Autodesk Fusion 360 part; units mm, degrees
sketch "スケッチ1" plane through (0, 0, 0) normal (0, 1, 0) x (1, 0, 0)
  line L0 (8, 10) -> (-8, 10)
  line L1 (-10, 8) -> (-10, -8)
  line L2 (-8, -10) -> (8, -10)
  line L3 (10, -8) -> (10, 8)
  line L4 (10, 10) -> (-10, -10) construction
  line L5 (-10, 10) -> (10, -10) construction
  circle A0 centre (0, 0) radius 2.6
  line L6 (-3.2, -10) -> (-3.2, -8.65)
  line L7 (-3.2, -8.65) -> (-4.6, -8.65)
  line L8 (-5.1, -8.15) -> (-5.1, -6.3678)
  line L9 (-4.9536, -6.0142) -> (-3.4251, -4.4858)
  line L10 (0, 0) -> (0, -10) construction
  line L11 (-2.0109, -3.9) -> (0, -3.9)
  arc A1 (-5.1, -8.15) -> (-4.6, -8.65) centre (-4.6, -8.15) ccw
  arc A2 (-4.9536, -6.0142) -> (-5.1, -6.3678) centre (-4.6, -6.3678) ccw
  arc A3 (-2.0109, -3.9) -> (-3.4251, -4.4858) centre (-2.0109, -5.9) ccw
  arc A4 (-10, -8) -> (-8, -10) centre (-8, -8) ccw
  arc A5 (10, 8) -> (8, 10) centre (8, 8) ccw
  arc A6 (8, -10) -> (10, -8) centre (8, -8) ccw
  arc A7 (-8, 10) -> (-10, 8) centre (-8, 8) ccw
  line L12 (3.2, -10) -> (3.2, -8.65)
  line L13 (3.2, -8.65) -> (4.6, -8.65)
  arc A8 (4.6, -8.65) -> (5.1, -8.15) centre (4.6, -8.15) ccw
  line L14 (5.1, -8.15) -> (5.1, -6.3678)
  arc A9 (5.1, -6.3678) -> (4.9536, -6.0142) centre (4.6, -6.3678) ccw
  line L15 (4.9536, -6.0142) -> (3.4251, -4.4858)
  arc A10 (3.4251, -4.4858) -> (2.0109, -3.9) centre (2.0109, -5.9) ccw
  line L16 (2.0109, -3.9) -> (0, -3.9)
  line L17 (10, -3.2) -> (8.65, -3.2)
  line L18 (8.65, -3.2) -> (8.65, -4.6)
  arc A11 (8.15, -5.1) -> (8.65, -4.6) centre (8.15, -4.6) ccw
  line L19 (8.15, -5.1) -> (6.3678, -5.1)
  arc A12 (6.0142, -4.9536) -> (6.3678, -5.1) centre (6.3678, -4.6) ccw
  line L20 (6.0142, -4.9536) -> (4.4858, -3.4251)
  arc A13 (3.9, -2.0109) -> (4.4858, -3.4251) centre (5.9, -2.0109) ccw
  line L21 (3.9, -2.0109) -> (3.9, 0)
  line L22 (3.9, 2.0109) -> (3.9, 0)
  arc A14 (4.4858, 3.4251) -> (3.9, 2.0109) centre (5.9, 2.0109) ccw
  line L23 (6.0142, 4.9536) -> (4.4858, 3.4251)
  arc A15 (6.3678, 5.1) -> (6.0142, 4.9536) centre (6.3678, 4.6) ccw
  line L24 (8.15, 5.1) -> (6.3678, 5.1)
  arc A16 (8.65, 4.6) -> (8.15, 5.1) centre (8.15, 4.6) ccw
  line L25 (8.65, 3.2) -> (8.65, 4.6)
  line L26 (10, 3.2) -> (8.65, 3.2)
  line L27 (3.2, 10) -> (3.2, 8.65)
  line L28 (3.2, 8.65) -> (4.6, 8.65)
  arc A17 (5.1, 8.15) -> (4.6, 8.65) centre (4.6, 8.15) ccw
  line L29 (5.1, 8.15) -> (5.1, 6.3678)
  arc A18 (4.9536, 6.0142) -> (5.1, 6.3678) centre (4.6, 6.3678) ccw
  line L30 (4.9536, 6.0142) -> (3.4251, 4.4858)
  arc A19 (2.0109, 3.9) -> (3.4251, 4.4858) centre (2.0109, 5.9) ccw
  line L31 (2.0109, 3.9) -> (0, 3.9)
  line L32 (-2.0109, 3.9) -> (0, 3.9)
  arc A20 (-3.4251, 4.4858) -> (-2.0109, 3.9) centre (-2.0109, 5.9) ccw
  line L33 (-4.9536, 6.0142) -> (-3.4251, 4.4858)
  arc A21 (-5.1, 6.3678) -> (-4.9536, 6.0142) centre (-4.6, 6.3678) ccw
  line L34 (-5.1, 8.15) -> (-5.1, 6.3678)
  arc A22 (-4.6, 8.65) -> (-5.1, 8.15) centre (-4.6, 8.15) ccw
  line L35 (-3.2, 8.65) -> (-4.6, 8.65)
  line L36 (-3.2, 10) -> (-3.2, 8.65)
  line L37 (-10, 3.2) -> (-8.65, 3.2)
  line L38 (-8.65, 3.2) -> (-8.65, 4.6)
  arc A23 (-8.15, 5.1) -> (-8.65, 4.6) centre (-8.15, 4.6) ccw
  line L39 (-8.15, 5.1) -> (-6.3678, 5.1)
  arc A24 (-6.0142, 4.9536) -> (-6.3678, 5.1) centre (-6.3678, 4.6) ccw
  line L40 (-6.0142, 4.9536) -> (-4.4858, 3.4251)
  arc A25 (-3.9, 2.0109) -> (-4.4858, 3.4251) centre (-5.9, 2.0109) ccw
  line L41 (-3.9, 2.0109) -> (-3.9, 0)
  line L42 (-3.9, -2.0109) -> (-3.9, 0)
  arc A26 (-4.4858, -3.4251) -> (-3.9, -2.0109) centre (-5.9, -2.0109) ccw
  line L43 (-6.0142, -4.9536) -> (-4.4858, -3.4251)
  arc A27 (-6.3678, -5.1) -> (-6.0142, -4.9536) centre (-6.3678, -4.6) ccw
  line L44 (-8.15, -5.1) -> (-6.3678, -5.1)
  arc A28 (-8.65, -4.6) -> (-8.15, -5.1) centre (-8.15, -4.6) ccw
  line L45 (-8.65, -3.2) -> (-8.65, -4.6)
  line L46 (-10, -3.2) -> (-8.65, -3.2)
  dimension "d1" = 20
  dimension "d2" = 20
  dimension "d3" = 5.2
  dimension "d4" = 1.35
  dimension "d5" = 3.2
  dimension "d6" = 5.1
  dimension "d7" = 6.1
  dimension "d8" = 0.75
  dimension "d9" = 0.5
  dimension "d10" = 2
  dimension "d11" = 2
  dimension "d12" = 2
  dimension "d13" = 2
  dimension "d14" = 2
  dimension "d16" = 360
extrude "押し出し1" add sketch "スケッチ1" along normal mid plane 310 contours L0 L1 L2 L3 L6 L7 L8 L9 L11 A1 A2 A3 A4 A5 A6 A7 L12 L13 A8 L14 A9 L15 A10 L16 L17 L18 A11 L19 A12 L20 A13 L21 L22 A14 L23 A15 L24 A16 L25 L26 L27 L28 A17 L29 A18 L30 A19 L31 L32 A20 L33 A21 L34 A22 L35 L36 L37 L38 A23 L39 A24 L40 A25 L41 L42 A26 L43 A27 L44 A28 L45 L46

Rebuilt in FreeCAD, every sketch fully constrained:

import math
import FreeCAD as App
import Part
import Sketcher
from FreeCAD import Vector
Q = App.Units.Quantity

doc = App.newDocument("Part")
body = doc.addObject("PartDesign::Body", "Body")

sketch1 = body.newObject("Sketcher::SketchObject", "Sketch")
sketch1.AttachmentSupport = (doc.getObject("XZ_Plane"), [""])
sketch1.MapMode = "FlatFace"
sketch1.addGeometry(Part.ArcOfCircle(Part.Circle(Vector(8, -8, 0), Vector(0, 0, 1), 2), math.radians(-90), math.radians(0)), False)
sketch1.addGeometry(Part.LineSegment(Vector(8, -10, 0), Vector(3.2, -10, 0)), False)
sketch1.addGeometry(Part.LineSegment(Vector(3.2, -10, 0), Vector(3.2, -8.65, 0)), False)
sketch1.addGeometry(Part.LineSegment(Vector(3.2, -8.65, 0), Vector(4.6, -8.65, 0)), False)
sketch1.addGeometry(Part.ArcOfCircle(Part.Circle(Vector(4.6, -8.15, 0), Vector(0, 0, 1), 0.5), math.radians(-90), math.radians(0)), False)
sketch1.addGeometry(Part.LineSegment(Vector(5.1, -8.15, 0), Vector(5.1, -6.3678, 0)), False)
sketch1.addGeometry(Part.ArcOfCircle(Part.Circle(Vector(4.6, -6.3678, 0), Vector(0, 0, 1), 0.500066), math.radians(0), math.radians(45)), False)
sketch1.addGeometry(Part.LineSegment(Vector(4.9536, -6.0142, 0), Vector(3.4251, -4.4858, 0)), False)
sketch1.addGeometry(Part.ArcOfCircle(Part.Circle(Vector(2.0109, -5.9, 0), Vector(0, 0, 1), 2), math.radians(45), math.radians(90)), False)
sketch1.addGeometry(Part.LineSegment(Vector(2.0109, -3.9, 0), Vector(-2.0109, -3.9, 0)), False)
sketch1.addGeometry(Part.ArcOfCircle(Part.Circle(Vector(-2.0109, -5.9, 0), Vector(0, 0, 1), 1.999981), math.radians(90), math.radians(135)), False)
sketch1.addGeometry(Part.LineSegment(Vector(-3.4251, -4.4858, 0), Vector(-4.9536, -6.0142, 0)), False)
sketch1.addGeometry(Part.ArcOfCircle(Part.Circle(Vector(-4.6, -6.3678, 0), Vector(0, 0, 1), 0.5), math.radians(135), math.radians(180)), False)
sketch1.addGeometry(Part.LineSegment(Vector(-5.1, -6.3678, 0), Vector(-5.1, -8.15, 0)), False)
sketch1.addGeometry(Part.ArcOfCircle(Part.Circle(Vector(-4.6, -8.15, 0), Vector(0, 0, 1), 0.5), math.radians(180), math.radians(270)), False)
sketch1.addGeometry(Part.LineSegment(Vector(-4.6, -8.65, 0), Vector(-3.2, -8.65, 0)), False)
sketch1.addGeometry(Part.LineSegment(Vector(-3.2, -8.65, 0), Vector(-3.2, -10, 0)), False)
sketch1.addGeometry(Part.LineSegment(Vector(-3.2, -10, 0), Vector(-8, -10, 0)), False)
sketch1.addGeometry(Part.ArcOfCircle(Part.Circle(Vector(-8, -8, 0), Vector(0, 0, 1), 2), math.radians(180), math.radians(270)), False)
sketch1.addGeometry(Part.LineSegment(Vector(-10, -8, 0), Vector(-10, -3.2, 0)), False)
sketch1.addGeometry(Part.LineSegment(Vector(-10, -3.2, 0), Vector(-8.65, -3.2, 0)), False)
sketch1.addGeometry(Part.LineSegment(Vector(-8.65, -3.2, 0), Vector(-8.65, -4.6, 0)), False)
sketch1.addGeometry(Part.ArcOfCircle(Part.Circle(Vector(-8.15, -4.6, 0), Vector(0, 0, 1), 0.5), math.radians(180), math.radians(270)), False)
sketch1.addGeometry(Part.LineSegment(Vector(-8.15, -5.1, 0), Vector(-6.3678, -5.1, 0)), False)
sketch1.addGeometry(Part.ArcOfCircle(Part.Circle(Vector(-6.3678, -4.6, 0), Vector(0, 0, 1), 0.500066), math.radians(-90), math.radians(-45)), False)
sketch1.addGeometry(Part.LineSegment(Vector(-6.0142, -4.9536, 0), Vector(-4.4858, -3.4251, 0)), False)
sketch1.addGeometry(Part.ArcOfCircle(Part.Circle(Vector(-5.9, -2.0109, 0), Vector(0, 0, 1), 2), math.radians(-45), math.radians(0)), False)
sketch1.addGeometry(Part.LineSegment(Vector(-3.9, -2.0109, 0), Vector(-3.9, 2.0109, 0)), False)
sketch1.addGeometry(Part.ArcOfCircle(Part.Circle(Vector(-5.9, 2.0109, 0), Vector(0, 0, 1), 1.999981), math.radians(0), math.radians(45)), False)
sketch1.addGeometry(Part.LineSegment(Vector(-4.4858, 3.4251, 0), Vector(-6.0142, 4.9536, 0)), False)
sketch1.addGeometry(Part.ArcOfCircle(Part.Circle(Vector(-6.3678, 4.6, 0), Vector(0, 0, 1), 0.5), math.radians(45), math.radians(90)), False)
sketch1.addGeometry(Part.LineSegment(Vector(-6.3678, 5.1, 0), Vector(-8.15, 5.1, 0)), False)
sketch1.addGeometry(Part.ArcOfCircle(Part.Circle(Vector(-8.15, 4.6, 0), Vector(0, 0, 1), 0.5), math.radians(90), math.radians(180)), False)
sketch1.addGeometry(Part.LineSegment(Vector(-8.65, 4.6, 0), Vector(-8.65, 3.2, 0)), False)
sketch1.addGeometry(Part.LineSegment(Vector(-8.65, 3.2, 0), Vector(-10, 3.2, 0)), False)
sketch1.addGeometry(Part.LineSegment(Vector(-10, 3.2, 0), Vector(-10, 8, 0)), False)
sketch1.addGeometry(Part.ArcOfCircle(Part.Circle(Vector(-8, 8, 0), Vector(0, 0, 1), 2), math.radians(90), math.radians(180)), False)
sketch1.addGeometry(Part.LineSegment(Vector(-8, 10, 0), Vector(-3.2, 10, 0)), False)
sketch1.addGeometry(Part.LineSegment(Vector(-3.2, 10, 0), Vector(-3.2, 8.65, 0)), False)
sketch1.addGeometry(Part.LineSegment(Vector(-3.2, 8.65, 0), Vector(-4.6, 8.65, 0)), False)
sketch1.addGeometry(Part.ArcOfCircle(Part.Circle(Vector(-4.6, 8.15, 0), Vector(0, 0, 1), 0.5), math.radians(90), math.radians(180)), False)
sketch1.addGeometry(Part.LineSegment(Vector(-5.1, 8.15, 0), Vector(-5.1, 6.3678, 0)), False)
sketch1.addGeometry(Part.ArcOfCircle(Part.Circle(Vector(-4.6, 6.3678, 0), Vector(0, 0, 1), 0.500066), math.radians(180), math.radians(225)), False)
sketch1.addGeometry(Part.LineSegment(Vector(-4.9536, 6.0142, 0), Vector(-3.4251, 4.4858, 0)), False)
sketch1.addGeometry(Part.ArcOfCircle(Part.Circle(Vector(-2.0109, 5.9, 0), Vector(0, 0, 1), 2), math.radians(-135), math.radians(-90)), False)
sketch1.addGeometry(Part.LineSegment(Vector(-2.0109, 3.9, 0), Vector(2.0109, 3.9, 0)), False)
sketch1.addGeometry(Part.ArcOfCircle(Part.Circle(Vector(2.0109, 5.9, 0), Vector(0, 0, 1), 1.999981), math.radians(-90), math.radians(-45)), False)
sketch1.addGeometry(Part.LineSegment(Vector(3.4251, 4.4858, 0), Vector(4.9536, 6.0142, 0)), False)
sketch1.addGeometry(Part.ArcOfCircle(Part.Circle(Vector(4.6, 6.3678, 0), Vector(0, 0, 1), 0.5), math.radians(-45), math.radians(0)), False)
sketch1.addGeometry(Part.LineSegment(Vector(5.1, 6.3678, 0), Vector(5.1, 8.15, 0)), False)
sketch1.addGeometry(Part.ArcOfCircle(Part.Circle(Vector(4.6, 8.15, 0), Vector(0, 0, 1), 0.5), math.radians(0), math.radians(90)), False)
sketch1.addGeometry(Part.LineSegment(Vector(4.6, 8.65, 0), Vector(3.2, 8.65, 0)), False)
sketch1.addGeometry(Part.LineSegment(Vector(3.2, 8.65, 0), Vector(3.2, 10, 0)), False)
sketch1.addGeometry(Part.LineSegment(Vector(3.2, 10, 0), Vector(8, 10, 0)), False)
sketch1.addGeometry(Part.ArcOfCircle(Part.Circle(Vector(8, 8, 0), Vector(0, 0, 1), 2), math.radians(0), math.radians(90)), False)
sketch1.addGeometry(Part.LineSegment(Vector(10, 8, 0), Vector(10, 3.2, 0)), False)
sketch1.addGeometry(Part.LineSegment(Vector(10, 3.2, 0), Vector(8.65, 3.2, 0)), False)
sketch1.addGeometry(Part.LineSegment(Vector(8.65, 3.2, 0), Vector(8.65, 4.6, 0)), False)
sketch1.addGeometry(Part.ArcOfCircle(Part.Circle(Vector(8.15, 4.6, 0), Vector(0, 0, 1), 0.5), math.radians(0), math.radians(90)), False)
sketch1.addGeometry(Part.LineSegment(Vector(8.15, 5.1, 0), Vector(6.3678, 5.1, 0)), False)
sketch1.addGeometry(Part.ArcOfCircle(Part.Circle(Vector(6.3678, 4.6, 0), Vector(0, 0, 1), 0.500066), math.radians(90), math.radians(135)), False)
sketch1.addGeometry(Part.LineSegment(Vector(6.0142, 4.9536, 0), Vector(4.4858, 3.4251, 0)), False)
sketch1.addGeometry(Part.ArcOfCircle(Part.Circle(Vector(5.9, 2.0109, 0), Vector(0, 0, 1), 2), math.radians(135), math.radians(180)), False)
sketch1.addGeometry(Part.LineSegment(Vector(3.9, 2.0109, 0), Vector(3.9, -2.0109, 0)), False)
sketch1.addGeometry(Part.ArcOfCircle(Part.Circle(Vector(5.9, -2.0109, 0), Vector(0, 0, 1), 1.999981), math.radians(180), math.radians(225)), False)
sketch1.addGeometry(Part.LineSegment(Vector(4.4858, -3.4251, 0), Vector(6.0142, -4.9536, 0)), False)
sketch1.addGeometry(Part.ArcOfCircle(Part.Circle(Vector(6.3678, -4.6, 0), Vector(0, 0, 1), 0.5), math.radians(-135), math.radians(-90)), False)
sketch1.addGeometry(Part.LineSegment(Vector(6.3678, -5.1, 0), Vector(8.15, -5.1, 0)), False)
sketch1.addGeometry(Part.ArcOfCircle(Part.Circle(Vector(8.15, -4.6, 0), Vector(0, 0, 1), 0.5), math.radians(-90), math.radians(0)), False)
sketch1.addGeometry(Part.LineSegment(Vector(8.65, -4.6, 0), Vector(8.65, -3.2, 0)), False)
sketch1.addGeometry(Part.LineSegment(Vector(8.65, -3.2, 0), Vector(10, -3.2, 0)), False)
sketch1.addGeometry(Part.LineSegment(Vector(10, -3.2, 0), Vector(10, -8, 0)), False)
sketch1.addGeometry(Part.Circle(Vector(0, 0, 0), Vector(0, 0, 1), 2.6), False)
sketch1.addConstraint(Sketcher.Constraint("Tangent", 0, 1, 1, 1))
sketch1.addConstraint(Sketcher.Constraint("Coincident", 1, 2, 2, 1))
sketch1.addConstraint(Sketcher.Constraint("Coincident", 2, 2, 3, 1))
sketch1.addConstraint(Sketcher.Constraint("Tangent", 3, 2, 4, 1))
sketch1.addConstraint(Sketcher.Constraint("Tangent", 4, 2, 5, 1))
sketch1.addConstraint(Sketcher.Constraint("Tangent", 5, 2, 6, 1))
sketch1.addConstraint(Sketcher.Constraint("Tangent", 6, 2, 7, 1))
sketch1.addConstraint(Sketcher.Constraint("Tangent", 7, 2, 8, 1))
sketch1.addConstraint(Sketcher.Constraint("Tangent", 8, 2, 9, 1))
sketch1.addConstraint(Sketcher.Constraint("Tangent", 9, 2, 10, 1))
sketch1.addConstraint(Sketcher.Constraint("Tangent", 10, 2, 11, 1))
sketch1.addConstraint(Sketcher.Constraint("Tangent", 11, 2, 12, 1))
sketch1.addConstraint(Sketcher.Constraint("Tangent", 12, 2, 13, 1))
sketch1.addConstraint(Sketcher.Constraint("Tangent", 13, 2, 14, 1))
sketch1.addConstraint(Sketcher.Constraint("Tangent", 14, 2, 15, 1))
sketch1.addConstraint(Sketcher.Constraint("Coincident", 15, 2, 16, 1))
sketch1.addConstraint(Sketcher.Constraint("Coincident", 16, 2, 17, 1))
sketch1.addConstraint(Sketcher.Constraint("Tangent", 17, 2, 18, 2))
sketch1.addConstraint(Sketcher.Constraint("Tangent", 18, 1, 19, 1))
sketch1.addConstraint(Sketcher.Constraint("Coincident", 19, 2, 20, 1))
sketch1.addConstraint(Sketcher.Constraint("Coincident", 20, 2, 21, 1))
sketch1.addConstraint(Sketcher.Constraint("Tangent", 21, 2, 22, 1))
sketch1.addConstraint(Sketcher.Constraint("Tangent", 22, 2, 23, 1))
sketch1.addConstraint(Sketcher.Constraint("Tangent", 23, 2, 24, 1))
sketch1.addConstraint(Sketcher.Constraint("Tangent", 24, 2, 25, 1))
sketch1.addConstraint(Sketcher.Constraint("Tangent", 25, 2, 26, 1))
sketch1.addConstraint(Sketcher.Constraint("Tangent", 26, 2, 27, 1))
sketch1.addConstraint(Sketcher.Constraint("Tangent", 27, 2, 28, 1))
sketch1.addConstraint(Sketcher.Constraint("Tangent", 28, 2, 29, 1))
sketch1.addConstraint(Sketcher.Constraint("Tangent", 29, 2, 30, 1))
sketch1.addConstraint(Sketcher.Constraint("Tangent", 30, 2, 31, 1))
sketch1.addConstraint(Sketcher.Constraint("Tangent", 31, 2, 32, 1))
sketch1.addConstraint(Sketcher.Constraint("Tangent", 32, 2, 33, 1))
sketch1.addConstraint(Sketcher.Constraint("Coincident", 33, 2, 34, 1))
sketch1.addConstraint(Sketcher.Constraint("Coincident", 34, 2, 35, 1))
sketch1.addConstraint(Sketcher.Constraint("Tangent", 35, 2, 36, 2))
sketch1.addConstraint(Sketcher.Constraint("Tangent", 36, 1, 37, 1))
sketch1.addConstraint(Sketcher.Constraint("Coincident", 37, 2, 38, 1))
sketch1.addConstraint(Sketcher.Constraint("Coincident", 38, 2, 39, 1))
sketch1.addConstraint(Sketcher.Constraint("Tangent", 39, 2, 40, 1))
sketch1.addConstraint(Sketcher.Constraint("Tangent", 40, 2, 41, 1))
sketch1.addConstraint(Sketcher.Constraint("Tangent", 41, 2, 42, 1))
sketch1.addConstraint(Sketcher.Constraint("Tangent", 42, 2, 43, 1))
sketch1.addConstraint(Sketcher.Constraint("Tangent", 43, 2, 44, 1))
sketch1.addConstraint(Sketcher.Constraint("Tangent", 44, 2, 45, 1))
sketch1.addConstraint(Sketcher.Constraint("Tangent", 45, 2, 46, 1))
sketch1.addConstraint(Sketcher.Constraint("Tangent", 46, 2, 47, 1))
sketch1.addConstraint(Sketcher.Constraint("Tangent", 47, 2, 48, 1))
sketch1.addConstraint(Sketcher.Constraint("Tangent", 48, 2, 49, 1))
sketch1.addConstraint(Sketcher.Constraint("Tangent", 49, 2, 50, 1))
sketch1.addConstraint(Sketcher.Constraint("Tangent", 50, 2, 51, 1))
sketch1.addConstraint(Sketcher.Constraint("Coincident", 51, 2, 52, 1))
sketch1.addConstraint(Sketcher.Constraint("Coincident", 52, 2, 53, 1))
sketch1.addConstraint(Sketcher.Constraint("Tangent", 53, 2, 54, 2))
sketch1.addConstraint(Sketcher.Constraint("Tangent", 54, 1, 55, 1))
sketch1.addConstraint(Sketcher.Constraint("Coincident", 55, 2, 56, 1))
sketch1.addConstraint(Sketcher.Constraint("Coincident", 56, 2, 57, 1))
sketch1.addConstraint(Sketcher.Constraint("Tangent", 57, 2, 58, 1))
sketch1.addConstraint(Sketcher.Constraint("Tangent", 58, 2, 59, 1))
sketch1.addConstraint(Sketcher.Constraint("Tangent", 59, 2, 60, 1))
sketch1.addConstraint(Sketcher.Constraint("Tangent", 60, 2, 61, 1))
sketch1.addConstraint(Sketcher.Constraint("Tangent", 61, 2, 62, 1))
sketch1.addConstraint(Sketcher.Constraint("Tangent", 62, 2, 63, 1))
sketch1.addConstraint(Sketcher.Constraint("Tangent", 63, 2, 64, 1))
sketch1.addConstraint(Sketcher.Constraint("Tangent", 64, 2, 65, 1))
sketch1.addConstraint(Sketcher.Constraint("Tangent", 65, 2, 66, 1))
sketch1.addConstraint(Sketcher.Constraint("Tangent", 66, 2, 67, 1))
sketch1.addConstraint(Sketcher.Constraint("Tangent", 67, 2, 68, 1))
sketch1.addConstraint(Sketcher.Constraint("Tangent", 68, 2, 69, 1))
sketch1.addConstraint(Sketcher.Constraint("Coincident", 69, 2, 70, 1))
sketch1.addConstraint(Sketcher.Constraint("Coincident", 70, 2, 71, 1))
sketch1.addConstraint(Sketcher.Constraint("Tangent", 71, 2, 0, 2))
sketch1.addConstraint(Sketcher.Constraint("Horizontal", 1))
sketch1.addConstraint(Sketcher.Constraint("Vertical", 2))
sketch1.addConstraint(Sketcher.Constraint("Horizontal", 3))
sketch1.addConstraint(Sketcher.Constraint("Vertical", 5))
sketch1.addConstraint(Sketcher.Constraint("Horizontal", 9))
sketch1.addConstraint(Sketcher.Constraint("Vertical", 13))
sketch1.addConstraint(Sketcher.Constraint("Horizontal", 15))
sketch1.addConstraint(Sketcher.Constraint("Vertical", 16))
sketch1.addConstraint(Sketcher.Constraint("Horizontal", 17))
sketch1.addConstraint(Sketcher.Constraint("Vertical", 19))
sketch1.addConstraint(Sketcher.Constraint("Horizontal", 20))
sketch1.addConstraint(Sketcher.Constraint("Vertical", 21))
sketch1.addConstraint(Sketcher.Constraint("Horizontal", 23))
sketch1.addConstraint(Sketcher.Constraint("Vertical", 27))
sketch1.addConstraint(Sketcher.Constraint("Horizontal", 31))
sketch1.addConstraint(Sketcher.Constraint("Vertical", 33))
sketch1.addConstraint(Sketcher.Constraint("Horizontal", 34))
sketch1.addConstraint(Sketcher.Constraint("Vertical", 35))
sketch1.addConstraint(Sketcher.Constraint("Horizontal", 37))
sketch1.addConstraint(Sketcher.Constraint("Vertical", 38))
sketch1.addConstraint(Sketcher.Constraint("Horizontal", 39))
sketch1.addConstraint(Sketcher.Constraint("Vertical", 41))
sketch1.addConstraint(Sketcher.Constraint("Horizontal", 45))
sketch1.addConstraint(Sketcher.Constraint("Vertical", 49))
sketch1.addConstraint(Sketcher.Constraint("Horizontal", 51))
sketch1.addConstraint(Sketcher.Constraint("Vertical", 52))
sketch1.addConstraint(Sketcher.Constraint("Horizontal", 53))
sketch1.addConstraint(Sketcher.Constraint("Vertical", 55))
sketch1.addConstraint(Sketcher.Constraint("Horizontal", 56))
sketch1.addConstraint(Sketcher.Constraint("Vertical", 57))
sketch1.addConstraint(Sketcher.Constraint("Horizontal", 59))
sketch1.addConstraint(Sketcher.Constraint("Vertical", 63))
sketch1.addConstraint(Sketcher.Constraint("Horizontal", 67))
sketch1.addConstraint(Sketcher.Constraint("Vertical", 69))
sketch1.addConstraint(Sketcher.Constraint("Horizontal", 70))
sketch1.addConstraint(Sketcher.Constraint("Vertical", 71))
sketch1.addConstraint(Sketcher.Constraint("Coincident", 72, 3, -1, 1))
sketch1.addConstraint(Sketcher.Constraint("Equal", 4, 6))
sketch1.addConstraint(Sketcher.Constraint("Equal", 0, 8))
sketch1.addConstraint(Sketcher.Constraint("Equal", 8, 10))
sketch1.addConstraint(Sketcher.Constraint("Equal", 6, 12))
sketch1.addConstraint(Sketcher.Constraint("Equal", 12, 14))
sketch1.addConstraint(Sketcher.Constraint("Equal", 10, 18))
sketch1.addConstraint(Sketcher.Constraint("Equal", 14, 22))
sketch1.addConstraint(Sketcher.Constraint("Equal", 22, 24))
sketch1.addConstraint(Sketcher.Constraint("Equal", 18, 26))
sketch1.addConstraint(Sketcher.Constraint("Equal", 26, 28))
sketch1.addConstraint(Sketcher.Constraint("Equal", 24, 30))
sketch1.addConstraint(Sketcher.Constraint("Equal", 30, 32))
sketch1.addConstraint(Sketcher.Constraint("Equal", 28, 36))
sketch1.addConstraint(Sketcher.Constraint("Equal", 32, 40))
sketch1.addConstraint(Sketcher.Constraint("Equal", 40, 42))
sketch1.addConstraint(Sketcher.Constraint("Equal", 36, 44))
sketch1.addConstraint(Sketcher.Constraint("Equal", 44, 46))
sketch1.addConstraint(Sketcher.Constraint("Equal", 42, 48))
sketch1.addConstraint(Sketcher.Constraint("Equal", 48, 50))
sketch1.addConstraint(Sketcher.Constraint("Equal", 46, 54))
sketch1.addConstraint(Sketcher.Constraint("Equal", 50, 58))
sketch1.addConstraint(Sketcher.Constraint("Equal", 58, 60))
sketch1.addConstraint(Sketcher.Constraint("Equal", 54, 62))
sketch1.addConstraint(Sketcher.Constraint("Equal", 62, 64))
sketch1.addConstraint(Sketcher.Constraint("Equal", 60, 66))
sketch1.addConstraint(Sketcher.Constraint("Equal", 66, 68))
sketch1.addConstraint(Sketcher.Constraint("Symmetric", 0, 3, 36, 3, -1, 1))
sketch1.addConstraint(Sketcher.Constraint("Symmetric", 4, 3, 40, 3, -1, 1))
sketch1.addConstraint(Sketcher.Constraint("Symmetric", 8, 3, 44, 3, -1, 1))
sketch1.addConstraint(Sketcher.Constraint("Symmetric", 12, 3, 48, 3, -1, 1))
sketch1.addConstraint(Sketcher.Constraint("Symmetric", 18, 3, 54, 3, -1, 1))
sketch1.addConstraint(Sketcher.Constraint("Symmetric", 22, 3, 58, 3, -1, 1))
sketch1.addConstraint(Sketcher.Constraint("Symmetric", 26, 3, 62, 3, -1, 1))
sketch1.addConstraint(Sketcher.Constraint("Symmetric", 30, 3, 66, 3, -1, 1))
sketch1.addConstraint(Sketcher.Constraint("Symmetric", 15, 2, 51, 2, -1, 1))
sketch1.addConstraint(Sketcher.Constraint("Symmetric", 33, 2, 69, 2, -1, 1))
sketch1.addConstraint(Sketcher.Constraint("Symmetric", 6, 3, 12, 3, -2))
sketch1.addConstraint(Sketcher.Constraint("Symmetric", 0, 3, 18, 3, -2))
sketch1.addConstraint(Sketcher.Constraint("Symmetric", 32, 3, 58, 3, -2))
sketch1.addConstraint(Sketcher.Constraint("Symmetric", 2, 2, 15, 2, -2))
sketch1.addConstraint(Sketcher.Constraint("Symmetric", 43, 2, 46, 2, -2))
sketch1.addConstraint(Sketcher.Constraint("Symmetric", 29, 2, 60, 2, -2))
sketch1.addConstraint(Sketcher.Constraint("Symmetric", 25, 2, 64, 2, -2))
sketch1.addConstraint(Sketcher.Constraint("Perpendicular", 7, 11))
sketch1.addConstraint(Sketcher.Constraint("Parallel", 11, 25))
sketch1.addConstraint(Sketcher.Constraint("Perpendicular", 25, 29))
sketch1.addConstraint(Sketcher.Constraint("Horizontal", 34, 2, 55, 2))
sketch1.addConstraint(Sketcher.Constraint("Horizontal", 20, 2, 69, 2))
sketch1.addConstraint(Sketcher.Constraint("Vertical", 16, 2, 37, 2))
sketch1.addConstraint(Sketcher.Constraint("Equal", 70, 2))
sketch1.addConstraint(Sketcher.Constraint("Equal", 67, 5))
sketch1.addConstraint(Sketcher.Constraint("Equal", 53, 19))
sketch1.addConstraint(Sketcher.Constraint("Equal", 51, 21))
sketch1.addConstraint(Sketcher.Constraint("Equal", 45, 27))
sketch1.addConstraint(Sketcher.Constraint("Equal", 11, 25))
sketch1.addConstraint(Sketcher.Constraint("Radius", 0, Q("2 mm")))
sketch1.addConstraint(Sketcher.Constraint("Diameter", 72, Q("5.2 mm")))
sketch1.addConstraint(Sketcher.Constraint("Radius", 4, Q("0.5 mm")))
sketch1.addConstraint(Sketcher.Constraint("DistanceX", 20, 1, 20, 2, Q("1.35 mm")))
sketch1.addConstraint(Sketcher.Constraint("DistanceX", -1, 1, 1, 2, Q("3.2 mm")))
sketch1.addConstraint(Sketcher.Constraint("DistanceX", -1, 1, 4, 2, Q("5.1 mm")))
sketch1.addConstraint(Sketcher.Constraint("DistanceX", 1, 2, 1, 1, Q("4.8 mm")))
sketch1.addConstraint(Sketcher.Constraint("DistanceY", 8, 3, -1, 1, Q("5.9 mm")))
sketch1.addConstraint(Sketcher.Constraint("DistanceX", 9, 2, 9, 1, Q("4.0218 mm")))
pad1 = body.newObject("PartDesign::Pad", "Pad")
pad1.Profile = sketch1
pad1.Length = 310
pad1.Midplane = True

doc.recompute()
